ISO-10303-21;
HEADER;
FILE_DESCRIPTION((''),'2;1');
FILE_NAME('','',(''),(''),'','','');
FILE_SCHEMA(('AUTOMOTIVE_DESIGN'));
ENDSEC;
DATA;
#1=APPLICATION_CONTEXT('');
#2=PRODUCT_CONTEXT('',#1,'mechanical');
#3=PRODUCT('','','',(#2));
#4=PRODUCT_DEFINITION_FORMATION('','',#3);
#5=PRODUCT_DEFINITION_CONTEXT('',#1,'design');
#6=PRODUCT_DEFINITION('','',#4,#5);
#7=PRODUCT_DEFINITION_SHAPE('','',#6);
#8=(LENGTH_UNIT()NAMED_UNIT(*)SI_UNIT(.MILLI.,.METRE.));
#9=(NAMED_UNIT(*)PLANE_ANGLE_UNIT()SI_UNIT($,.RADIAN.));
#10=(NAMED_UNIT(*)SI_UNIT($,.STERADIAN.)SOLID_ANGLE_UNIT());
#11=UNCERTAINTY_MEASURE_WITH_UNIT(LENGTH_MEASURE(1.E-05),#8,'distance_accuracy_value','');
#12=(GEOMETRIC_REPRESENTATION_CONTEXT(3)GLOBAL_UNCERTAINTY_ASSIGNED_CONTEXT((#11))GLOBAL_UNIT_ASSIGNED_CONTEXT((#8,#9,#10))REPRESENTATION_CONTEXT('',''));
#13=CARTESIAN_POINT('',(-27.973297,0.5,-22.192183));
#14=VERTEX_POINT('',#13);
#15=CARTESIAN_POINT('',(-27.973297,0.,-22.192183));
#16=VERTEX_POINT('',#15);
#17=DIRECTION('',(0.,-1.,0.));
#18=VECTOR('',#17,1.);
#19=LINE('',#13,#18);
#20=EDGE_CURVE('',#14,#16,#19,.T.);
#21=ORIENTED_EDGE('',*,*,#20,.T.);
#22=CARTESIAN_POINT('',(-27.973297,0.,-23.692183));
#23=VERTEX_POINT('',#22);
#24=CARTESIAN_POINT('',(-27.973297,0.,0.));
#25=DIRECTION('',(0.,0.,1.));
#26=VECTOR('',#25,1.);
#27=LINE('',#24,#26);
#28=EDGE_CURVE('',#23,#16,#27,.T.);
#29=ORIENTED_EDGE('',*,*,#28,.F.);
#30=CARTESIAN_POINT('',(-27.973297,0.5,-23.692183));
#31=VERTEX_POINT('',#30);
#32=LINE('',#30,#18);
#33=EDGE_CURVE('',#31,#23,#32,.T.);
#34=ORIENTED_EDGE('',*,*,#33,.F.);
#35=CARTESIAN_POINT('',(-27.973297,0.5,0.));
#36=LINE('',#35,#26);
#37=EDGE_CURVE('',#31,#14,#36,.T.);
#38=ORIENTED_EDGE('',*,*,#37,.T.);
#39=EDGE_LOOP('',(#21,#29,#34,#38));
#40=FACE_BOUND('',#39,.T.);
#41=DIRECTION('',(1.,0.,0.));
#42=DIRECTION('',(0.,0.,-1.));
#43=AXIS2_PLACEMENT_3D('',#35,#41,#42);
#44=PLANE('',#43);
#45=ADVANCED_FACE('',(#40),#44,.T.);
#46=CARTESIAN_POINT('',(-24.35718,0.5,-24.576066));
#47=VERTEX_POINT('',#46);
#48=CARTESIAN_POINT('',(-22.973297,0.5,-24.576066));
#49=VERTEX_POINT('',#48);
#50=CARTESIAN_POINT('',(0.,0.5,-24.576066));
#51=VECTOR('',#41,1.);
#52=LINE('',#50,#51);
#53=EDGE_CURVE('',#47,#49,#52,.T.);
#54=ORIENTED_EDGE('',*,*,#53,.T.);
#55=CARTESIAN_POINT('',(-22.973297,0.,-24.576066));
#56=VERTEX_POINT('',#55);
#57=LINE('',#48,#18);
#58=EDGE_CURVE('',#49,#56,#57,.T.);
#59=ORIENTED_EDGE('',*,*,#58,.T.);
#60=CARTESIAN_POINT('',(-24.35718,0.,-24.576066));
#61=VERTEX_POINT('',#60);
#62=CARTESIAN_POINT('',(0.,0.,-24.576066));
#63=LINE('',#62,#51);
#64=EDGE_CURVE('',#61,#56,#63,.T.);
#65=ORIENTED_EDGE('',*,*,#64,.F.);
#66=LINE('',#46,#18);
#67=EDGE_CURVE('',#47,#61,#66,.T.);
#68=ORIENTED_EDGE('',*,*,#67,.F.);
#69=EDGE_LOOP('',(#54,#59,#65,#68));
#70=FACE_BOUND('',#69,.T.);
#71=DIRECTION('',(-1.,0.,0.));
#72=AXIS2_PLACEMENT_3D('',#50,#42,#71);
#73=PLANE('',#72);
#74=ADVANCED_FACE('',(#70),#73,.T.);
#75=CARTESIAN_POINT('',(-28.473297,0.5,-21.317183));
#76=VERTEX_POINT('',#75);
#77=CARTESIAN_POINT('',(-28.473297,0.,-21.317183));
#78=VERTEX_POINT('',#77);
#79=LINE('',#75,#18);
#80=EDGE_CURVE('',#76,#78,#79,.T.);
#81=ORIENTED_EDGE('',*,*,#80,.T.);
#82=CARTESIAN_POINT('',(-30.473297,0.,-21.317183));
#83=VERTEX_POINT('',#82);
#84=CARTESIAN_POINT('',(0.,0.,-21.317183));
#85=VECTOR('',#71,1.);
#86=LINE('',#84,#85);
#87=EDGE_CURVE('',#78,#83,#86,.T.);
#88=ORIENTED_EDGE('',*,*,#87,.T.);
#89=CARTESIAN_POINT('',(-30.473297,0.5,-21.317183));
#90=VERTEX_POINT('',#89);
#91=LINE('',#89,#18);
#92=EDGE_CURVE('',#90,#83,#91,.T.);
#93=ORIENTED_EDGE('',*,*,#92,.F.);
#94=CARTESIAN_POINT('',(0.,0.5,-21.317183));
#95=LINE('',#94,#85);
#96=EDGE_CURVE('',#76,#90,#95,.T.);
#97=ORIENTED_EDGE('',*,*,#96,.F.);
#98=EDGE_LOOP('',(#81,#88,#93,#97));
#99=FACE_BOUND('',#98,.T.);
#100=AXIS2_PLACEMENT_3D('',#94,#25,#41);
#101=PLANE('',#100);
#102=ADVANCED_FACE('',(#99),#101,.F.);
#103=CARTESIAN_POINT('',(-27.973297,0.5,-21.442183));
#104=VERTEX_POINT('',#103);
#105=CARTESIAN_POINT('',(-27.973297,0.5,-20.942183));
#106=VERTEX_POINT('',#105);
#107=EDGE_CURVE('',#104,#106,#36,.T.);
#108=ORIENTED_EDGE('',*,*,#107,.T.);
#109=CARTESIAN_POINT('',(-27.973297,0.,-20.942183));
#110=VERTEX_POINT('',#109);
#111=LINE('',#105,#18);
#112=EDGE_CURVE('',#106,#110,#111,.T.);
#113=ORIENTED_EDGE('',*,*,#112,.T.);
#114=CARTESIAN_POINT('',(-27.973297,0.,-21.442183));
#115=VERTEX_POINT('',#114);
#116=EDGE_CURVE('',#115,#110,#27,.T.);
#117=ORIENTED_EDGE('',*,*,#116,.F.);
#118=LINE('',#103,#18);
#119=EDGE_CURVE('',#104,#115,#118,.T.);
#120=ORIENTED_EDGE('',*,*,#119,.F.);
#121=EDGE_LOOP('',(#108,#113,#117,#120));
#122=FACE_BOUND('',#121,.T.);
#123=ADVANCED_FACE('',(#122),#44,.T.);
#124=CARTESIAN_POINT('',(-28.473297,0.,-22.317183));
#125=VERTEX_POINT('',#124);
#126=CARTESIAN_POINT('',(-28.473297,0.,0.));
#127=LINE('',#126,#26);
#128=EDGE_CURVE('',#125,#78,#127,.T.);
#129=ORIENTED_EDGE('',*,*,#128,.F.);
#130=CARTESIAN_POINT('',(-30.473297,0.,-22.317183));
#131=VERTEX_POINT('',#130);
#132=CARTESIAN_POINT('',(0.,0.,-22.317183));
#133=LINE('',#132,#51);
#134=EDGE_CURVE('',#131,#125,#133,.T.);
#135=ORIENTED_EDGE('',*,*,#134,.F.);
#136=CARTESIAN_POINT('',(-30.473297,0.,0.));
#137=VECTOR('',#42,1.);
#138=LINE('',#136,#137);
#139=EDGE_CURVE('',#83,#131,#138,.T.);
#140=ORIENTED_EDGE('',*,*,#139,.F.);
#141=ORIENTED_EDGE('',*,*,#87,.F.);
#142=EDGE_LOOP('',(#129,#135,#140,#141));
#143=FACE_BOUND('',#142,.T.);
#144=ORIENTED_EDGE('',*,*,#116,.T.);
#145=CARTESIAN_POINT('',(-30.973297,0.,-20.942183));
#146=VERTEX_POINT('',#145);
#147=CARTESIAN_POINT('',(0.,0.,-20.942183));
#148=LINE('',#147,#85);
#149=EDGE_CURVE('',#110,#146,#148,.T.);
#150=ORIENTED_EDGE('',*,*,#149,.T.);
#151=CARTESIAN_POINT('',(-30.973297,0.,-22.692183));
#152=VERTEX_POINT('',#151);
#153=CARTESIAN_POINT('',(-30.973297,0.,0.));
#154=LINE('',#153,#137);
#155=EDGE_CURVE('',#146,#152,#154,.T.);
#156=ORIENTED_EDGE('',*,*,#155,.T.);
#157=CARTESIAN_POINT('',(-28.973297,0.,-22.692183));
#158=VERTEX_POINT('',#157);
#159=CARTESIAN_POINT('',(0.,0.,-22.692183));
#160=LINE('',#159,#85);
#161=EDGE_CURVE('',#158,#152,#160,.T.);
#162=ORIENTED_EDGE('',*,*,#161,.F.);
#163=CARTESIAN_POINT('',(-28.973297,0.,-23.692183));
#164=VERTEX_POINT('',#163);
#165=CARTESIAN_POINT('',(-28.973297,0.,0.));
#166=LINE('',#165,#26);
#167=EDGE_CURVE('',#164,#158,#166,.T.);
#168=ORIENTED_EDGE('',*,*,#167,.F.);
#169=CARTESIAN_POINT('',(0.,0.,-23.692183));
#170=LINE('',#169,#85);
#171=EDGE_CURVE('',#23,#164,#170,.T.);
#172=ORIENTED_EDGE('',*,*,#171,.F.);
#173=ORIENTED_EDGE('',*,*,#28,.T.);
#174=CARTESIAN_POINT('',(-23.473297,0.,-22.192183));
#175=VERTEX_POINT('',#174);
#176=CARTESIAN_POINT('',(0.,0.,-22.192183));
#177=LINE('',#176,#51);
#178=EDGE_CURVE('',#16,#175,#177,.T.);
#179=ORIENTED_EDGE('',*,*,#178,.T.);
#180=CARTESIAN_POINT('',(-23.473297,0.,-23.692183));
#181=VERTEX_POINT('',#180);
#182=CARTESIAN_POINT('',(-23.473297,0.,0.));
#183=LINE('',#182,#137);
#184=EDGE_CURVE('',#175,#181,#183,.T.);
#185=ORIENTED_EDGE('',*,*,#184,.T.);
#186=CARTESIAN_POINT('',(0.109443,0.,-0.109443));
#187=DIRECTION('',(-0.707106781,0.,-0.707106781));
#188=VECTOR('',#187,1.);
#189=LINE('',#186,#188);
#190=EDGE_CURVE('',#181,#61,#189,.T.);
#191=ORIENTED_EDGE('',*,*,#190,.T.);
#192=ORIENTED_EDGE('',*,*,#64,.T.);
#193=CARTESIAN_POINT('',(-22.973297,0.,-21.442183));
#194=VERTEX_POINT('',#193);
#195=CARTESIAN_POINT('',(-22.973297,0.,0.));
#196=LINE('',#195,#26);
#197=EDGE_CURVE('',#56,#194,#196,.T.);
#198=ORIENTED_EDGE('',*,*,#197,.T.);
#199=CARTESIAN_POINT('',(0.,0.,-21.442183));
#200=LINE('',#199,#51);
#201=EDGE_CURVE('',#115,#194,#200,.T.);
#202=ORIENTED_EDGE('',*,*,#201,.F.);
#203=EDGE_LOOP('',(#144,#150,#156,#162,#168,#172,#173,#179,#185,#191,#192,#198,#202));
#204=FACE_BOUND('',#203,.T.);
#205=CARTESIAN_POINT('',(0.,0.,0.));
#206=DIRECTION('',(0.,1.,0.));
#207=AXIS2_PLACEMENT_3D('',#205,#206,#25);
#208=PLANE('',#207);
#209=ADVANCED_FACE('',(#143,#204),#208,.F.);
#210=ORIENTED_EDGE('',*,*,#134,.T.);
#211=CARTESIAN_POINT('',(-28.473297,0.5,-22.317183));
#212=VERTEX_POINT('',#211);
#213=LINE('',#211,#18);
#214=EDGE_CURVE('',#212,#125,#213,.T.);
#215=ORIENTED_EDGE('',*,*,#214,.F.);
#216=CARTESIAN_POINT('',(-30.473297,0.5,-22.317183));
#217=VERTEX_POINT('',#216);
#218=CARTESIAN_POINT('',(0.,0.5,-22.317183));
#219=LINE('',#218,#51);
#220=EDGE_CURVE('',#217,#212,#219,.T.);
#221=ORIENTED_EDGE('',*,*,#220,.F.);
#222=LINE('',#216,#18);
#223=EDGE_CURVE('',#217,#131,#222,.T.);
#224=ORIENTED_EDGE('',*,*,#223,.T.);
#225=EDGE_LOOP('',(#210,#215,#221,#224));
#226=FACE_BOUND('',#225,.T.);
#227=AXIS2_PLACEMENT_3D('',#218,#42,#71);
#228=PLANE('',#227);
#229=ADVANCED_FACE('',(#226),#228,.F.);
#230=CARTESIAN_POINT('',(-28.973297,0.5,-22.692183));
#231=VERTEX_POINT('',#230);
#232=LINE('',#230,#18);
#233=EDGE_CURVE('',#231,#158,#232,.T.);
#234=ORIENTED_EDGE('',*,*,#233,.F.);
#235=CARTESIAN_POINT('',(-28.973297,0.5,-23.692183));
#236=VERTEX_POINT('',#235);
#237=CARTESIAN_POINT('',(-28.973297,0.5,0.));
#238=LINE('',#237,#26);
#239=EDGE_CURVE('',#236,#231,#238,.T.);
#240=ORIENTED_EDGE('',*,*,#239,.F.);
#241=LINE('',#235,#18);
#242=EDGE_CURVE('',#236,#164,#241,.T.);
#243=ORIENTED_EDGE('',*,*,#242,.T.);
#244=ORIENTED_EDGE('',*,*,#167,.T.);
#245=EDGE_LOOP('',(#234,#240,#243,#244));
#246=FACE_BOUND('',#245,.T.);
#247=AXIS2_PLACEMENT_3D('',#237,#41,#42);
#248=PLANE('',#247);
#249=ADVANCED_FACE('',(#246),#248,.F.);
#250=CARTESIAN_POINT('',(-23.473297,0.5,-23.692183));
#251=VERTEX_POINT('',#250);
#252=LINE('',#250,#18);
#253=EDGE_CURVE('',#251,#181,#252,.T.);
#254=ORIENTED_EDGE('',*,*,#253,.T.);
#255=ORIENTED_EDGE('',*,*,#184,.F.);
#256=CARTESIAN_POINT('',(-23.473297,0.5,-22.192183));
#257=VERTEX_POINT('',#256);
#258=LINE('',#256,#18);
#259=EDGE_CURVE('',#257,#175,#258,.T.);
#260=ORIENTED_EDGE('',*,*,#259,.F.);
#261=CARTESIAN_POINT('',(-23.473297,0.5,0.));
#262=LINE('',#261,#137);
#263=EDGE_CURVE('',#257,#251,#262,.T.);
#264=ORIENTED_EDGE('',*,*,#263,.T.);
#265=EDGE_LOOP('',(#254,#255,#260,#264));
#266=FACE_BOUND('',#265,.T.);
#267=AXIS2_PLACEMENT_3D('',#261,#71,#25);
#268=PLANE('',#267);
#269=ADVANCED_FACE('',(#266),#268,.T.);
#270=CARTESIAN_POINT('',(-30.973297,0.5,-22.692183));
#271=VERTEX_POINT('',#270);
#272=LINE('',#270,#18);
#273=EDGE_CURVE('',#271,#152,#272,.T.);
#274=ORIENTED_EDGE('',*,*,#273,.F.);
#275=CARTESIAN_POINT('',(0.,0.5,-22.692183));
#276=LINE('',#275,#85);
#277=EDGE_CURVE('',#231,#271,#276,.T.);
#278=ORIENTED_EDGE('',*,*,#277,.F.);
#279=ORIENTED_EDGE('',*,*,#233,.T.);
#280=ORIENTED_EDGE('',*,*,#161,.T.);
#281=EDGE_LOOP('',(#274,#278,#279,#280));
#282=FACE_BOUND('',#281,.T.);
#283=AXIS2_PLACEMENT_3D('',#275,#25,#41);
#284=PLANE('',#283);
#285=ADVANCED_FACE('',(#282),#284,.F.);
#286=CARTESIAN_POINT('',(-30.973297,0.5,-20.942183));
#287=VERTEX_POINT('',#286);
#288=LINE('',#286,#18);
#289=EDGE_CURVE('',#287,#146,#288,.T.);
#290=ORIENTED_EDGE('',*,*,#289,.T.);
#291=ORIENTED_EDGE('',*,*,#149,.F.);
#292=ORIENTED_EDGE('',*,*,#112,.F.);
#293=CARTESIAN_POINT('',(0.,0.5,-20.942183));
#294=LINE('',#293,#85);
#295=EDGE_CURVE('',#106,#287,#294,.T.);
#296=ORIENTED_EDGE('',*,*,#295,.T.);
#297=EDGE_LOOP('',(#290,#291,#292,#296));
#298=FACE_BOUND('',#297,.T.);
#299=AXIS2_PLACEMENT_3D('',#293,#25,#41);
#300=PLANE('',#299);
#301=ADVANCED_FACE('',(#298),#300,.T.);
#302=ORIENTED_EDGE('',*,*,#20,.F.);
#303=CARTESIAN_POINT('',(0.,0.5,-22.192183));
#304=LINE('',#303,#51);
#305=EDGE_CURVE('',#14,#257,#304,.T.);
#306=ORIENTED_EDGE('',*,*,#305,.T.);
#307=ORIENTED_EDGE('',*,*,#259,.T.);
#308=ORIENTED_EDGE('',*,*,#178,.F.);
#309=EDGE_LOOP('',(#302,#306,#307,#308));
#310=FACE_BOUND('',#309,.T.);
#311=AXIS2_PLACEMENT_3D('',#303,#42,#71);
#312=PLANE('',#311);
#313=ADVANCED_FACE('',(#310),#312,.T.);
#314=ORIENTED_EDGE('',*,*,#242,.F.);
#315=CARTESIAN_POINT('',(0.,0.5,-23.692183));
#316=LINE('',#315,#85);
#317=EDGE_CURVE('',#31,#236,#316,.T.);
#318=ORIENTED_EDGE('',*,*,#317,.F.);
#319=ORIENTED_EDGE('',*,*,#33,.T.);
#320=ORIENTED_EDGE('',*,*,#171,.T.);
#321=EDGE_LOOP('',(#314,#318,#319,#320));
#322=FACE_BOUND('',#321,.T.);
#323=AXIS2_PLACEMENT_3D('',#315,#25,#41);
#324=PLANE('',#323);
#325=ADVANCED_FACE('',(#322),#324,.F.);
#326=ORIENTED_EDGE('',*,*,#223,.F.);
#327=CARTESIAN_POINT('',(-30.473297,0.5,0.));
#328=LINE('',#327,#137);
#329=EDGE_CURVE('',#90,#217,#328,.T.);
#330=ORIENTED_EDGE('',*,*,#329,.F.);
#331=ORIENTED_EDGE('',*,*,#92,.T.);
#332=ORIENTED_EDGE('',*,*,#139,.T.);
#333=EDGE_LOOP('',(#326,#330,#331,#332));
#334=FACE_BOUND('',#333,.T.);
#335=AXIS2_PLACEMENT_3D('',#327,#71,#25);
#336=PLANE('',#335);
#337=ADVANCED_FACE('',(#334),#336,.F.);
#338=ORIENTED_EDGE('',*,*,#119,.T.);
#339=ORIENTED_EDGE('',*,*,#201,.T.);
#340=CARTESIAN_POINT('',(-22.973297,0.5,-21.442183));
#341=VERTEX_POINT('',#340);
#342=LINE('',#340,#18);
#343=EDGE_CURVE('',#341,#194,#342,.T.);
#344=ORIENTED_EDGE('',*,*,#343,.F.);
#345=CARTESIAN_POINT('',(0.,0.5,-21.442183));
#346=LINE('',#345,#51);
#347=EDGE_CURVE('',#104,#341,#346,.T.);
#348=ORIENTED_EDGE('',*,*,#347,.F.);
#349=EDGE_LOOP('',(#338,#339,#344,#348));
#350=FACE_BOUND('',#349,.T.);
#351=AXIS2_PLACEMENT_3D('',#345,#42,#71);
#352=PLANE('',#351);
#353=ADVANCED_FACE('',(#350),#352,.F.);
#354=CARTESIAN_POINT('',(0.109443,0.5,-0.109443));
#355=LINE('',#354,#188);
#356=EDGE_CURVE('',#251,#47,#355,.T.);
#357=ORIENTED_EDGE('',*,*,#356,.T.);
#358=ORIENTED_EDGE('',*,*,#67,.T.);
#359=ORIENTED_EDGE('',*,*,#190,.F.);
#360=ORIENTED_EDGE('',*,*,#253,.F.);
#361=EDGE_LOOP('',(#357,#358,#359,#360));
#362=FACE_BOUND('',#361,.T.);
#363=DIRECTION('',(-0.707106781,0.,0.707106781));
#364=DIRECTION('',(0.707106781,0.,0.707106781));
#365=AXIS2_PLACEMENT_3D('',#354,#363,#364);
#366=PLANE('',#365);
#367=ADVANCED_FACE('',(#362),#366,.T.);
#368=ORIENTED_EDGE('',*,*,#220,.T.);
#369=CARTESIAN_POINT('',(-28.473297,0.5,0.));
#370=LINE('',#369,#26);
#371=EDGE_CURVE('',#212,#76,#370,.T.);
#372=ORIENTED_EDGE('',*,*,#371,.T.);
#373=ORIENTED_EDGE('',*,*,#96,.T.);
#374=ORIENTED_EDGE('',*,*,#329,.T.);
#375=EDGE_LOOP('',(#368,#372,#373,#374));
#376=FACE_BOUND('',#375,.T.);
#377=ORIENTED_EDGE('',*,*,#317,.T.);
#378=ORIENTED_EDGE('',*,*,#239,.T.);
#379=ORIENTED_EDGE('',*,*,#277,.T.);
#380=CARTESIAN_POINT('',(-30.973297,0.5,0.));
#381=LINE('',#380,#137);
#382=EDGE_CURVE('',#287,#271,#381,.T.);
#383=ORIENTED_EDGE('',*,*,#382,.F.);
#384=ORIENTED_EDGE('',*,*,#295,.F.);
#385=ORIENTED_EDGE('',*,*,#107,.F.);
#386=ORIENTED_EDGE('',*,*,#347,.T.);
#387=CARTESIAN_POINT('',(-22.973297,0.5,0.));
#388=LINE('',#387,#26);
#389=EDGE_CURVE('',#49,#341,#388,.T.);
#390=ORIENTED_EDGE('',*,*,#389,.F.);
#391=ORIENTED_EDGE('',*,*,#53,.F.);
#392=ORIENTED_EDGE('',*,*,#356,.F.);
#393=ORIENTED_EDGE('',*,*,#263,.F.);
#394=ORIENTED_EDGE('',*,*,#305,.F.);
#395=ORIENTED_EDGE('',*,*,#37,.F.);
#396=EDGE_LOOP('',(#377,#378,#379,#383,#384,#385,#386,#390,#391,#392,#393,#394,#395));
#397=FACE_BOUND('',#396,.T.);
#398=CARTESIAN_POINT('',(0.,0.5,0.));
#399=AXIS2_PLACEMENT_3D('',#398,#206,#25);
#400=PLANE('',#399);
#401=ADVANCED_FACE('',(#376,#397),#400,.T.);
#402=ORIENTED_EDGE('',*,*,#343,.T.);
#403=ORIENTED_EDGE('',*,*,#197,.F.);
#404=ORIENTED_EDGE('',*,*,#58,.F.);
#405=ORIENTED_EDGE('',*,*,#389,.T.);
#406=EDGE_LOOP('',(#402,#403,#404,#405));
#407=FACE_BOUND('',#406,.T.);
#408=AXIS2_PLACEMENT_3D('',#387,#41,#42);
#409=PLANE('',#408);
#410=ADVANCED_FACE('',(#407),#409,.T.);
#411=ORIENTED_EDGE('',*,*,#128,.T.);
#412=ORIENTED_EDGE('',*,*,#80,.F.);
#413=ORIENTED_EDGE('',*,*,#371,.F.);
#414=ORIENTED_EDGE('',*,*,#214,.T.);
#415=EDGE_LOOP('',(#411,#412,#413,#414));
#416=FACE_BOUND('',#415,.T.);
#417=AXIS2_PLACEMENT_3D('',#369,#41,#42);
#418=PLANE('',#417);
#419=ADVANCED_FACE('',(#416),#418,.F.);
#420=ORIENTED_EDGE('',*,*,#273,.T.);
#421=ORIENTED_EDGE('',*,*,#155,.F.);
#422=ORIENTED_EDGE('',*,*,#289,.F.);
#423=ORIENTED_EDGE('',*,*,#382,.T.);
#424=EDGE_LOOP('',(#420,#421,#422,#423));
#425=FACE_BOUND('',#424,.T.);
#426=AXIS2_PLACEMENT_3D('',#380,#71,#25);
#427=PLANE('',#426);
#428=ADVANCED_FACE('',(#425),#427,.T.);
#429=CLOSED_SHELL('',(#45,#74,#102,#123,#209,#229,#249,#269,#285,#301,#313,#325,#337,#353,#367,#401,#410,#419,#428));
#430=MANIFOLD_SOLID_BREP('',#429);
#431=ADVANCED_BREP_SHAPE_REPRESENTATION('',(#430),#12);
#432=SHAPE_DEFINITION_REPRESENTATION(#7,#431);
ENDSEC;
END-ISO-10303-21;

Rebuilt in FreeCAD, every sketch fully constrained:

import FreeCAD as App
import Part
import Sketcher
Q = App.Units.Quantity

doc = App.newDocument("Part")
body = doc.addObject("PartDesign::Body", "Body")

sketch1 = body.newObject("Sketcher::SketchObject", "Sketch")
sketch1.AttachmentSupport = (doc.getObject("XZ_Plane"), [""])
sketch1.MapMode = "FlatFace"
sketch1.addGeometry([
    Part.LineSegment(App.Vector(-23.473297, -22.192183, 0), App.Vector(-27.973297, -22.192183, 0)),
    Part.LineSegment(App.Vector(-27.973297, -22.192183, 0), App.Vector(-27.973297, -23.692183, 0)),
    Part.LineSegment(App.Vector(-27.973297, -23.692183, 0), App.Vector(-28.973297, -23.692183, 0)),
    Part.LineSegment(App.Vector(-28.973297, -23.692183, 0), App.Vector(-28.973297, -22.692183, 0)),
    Part.LineSegment(App.Vector(-28.973297, -22.692183, 0), App.Vector(-30.973297, -22.692183, 0)),
    Part.LineSegment(App.Vector(-30.973297, -22.692183, 0), App.Vector(-30.973297, -20.942183, 0)),
    Part.LineSegment(App.Vector(-30.973297, -20.942183, 0), App.Vector(-27.973297, -20.942183, 0)),
    Part.LineSegment(App.Vector(-27.973297, -20.942183, 0), App.Vector(-27.973297, -21.442183, 0)),
    Part.LineSegment(App.Vector(-27.973297, -21.442183, 0), App.Vector(-22.973297, -21.442183, 0)),
    Part.LineSegment(App.Vector(-22.973297, -21.442183, 0), App.Vector(-22.973297, -24.576066, 0)),
    Part.LineSegment(App.Vector(-22.973297, -24.576066, 0), App.Vector(-24.35718, -24.576066, 0)),
    Part.LineSegment(App.Vector(-24.35718, -24.576066, 0), App.Vector(-23.473297, -23.692183, 0)),
    Part.LineSegment(App.Vector(-23.473297, -23.692183, 0), App.Vector(-23.473297, -22.192183, 0)),
    Part.LineSegment(App.Vector(-28.473297, -21.317183, 0), App.Vector(-30.473297, -21.317183, 0)),
    Part.LineSegment(App.Vector(-30.473297, -21.317183, 0), App.Vector(-30.473297, -22.317183, 0)),
    Part.LineSegment(App.Vector(-30.473297, -22.317183, 0), App.Vector(-28.473297, -22.317183, 0)),
    Part.LineSegment(App.Vector(-28.473297, -22.317183, 0), App.Vector(-28.473297, -21.317183, 0)),
], False)
sketch1.addConstraint([
    Sketcher.Constraint("Coincident", 0, 2, 1, 1),
    Sketcher.Constraint("Coincident", 1, 2, 2, 1),
    Sketcher.Constraint("Coincident", 2, 2, 3, 1),
    Sketcher.Constraint("Coincident", 3, 2, 4, 1),
    Sketcher.Constraint("Coincident", 4, 2, 5, 1),
    Sketcher.Constraint("Coincident", 5, 2, 6, 1),
    Sketcher.Constraint("Coincident", 6, 2, 7, 1),
    Sketcher.Constraint("Coincident", 7, 2, 8, 1),
    Sketcher.Constraint("Coincident", 8, 2, 9, 1),
    Sketcher.Constraint("Coincident", 9, 2, 10, 1),
    Sketcher.Constraint("Coincident", 10, 2, 11, 1),
    Sketcher.Constraint("Coincident", 11, 2, 12, 1),
    Sketcher.Constraint("Coincident", 12, 2, 0, 1),
    Sketcher.Constraint("Coincident", 13, 2, 14, 1),
    Sketcher.Constraint("Coincident", 14, 2, 15, 1),
    Sketcher.Constraint("Coincident", 15, 2, 16, 1),
    Sketcher.Constraint("Coincident", 16, 2, 13, 1),
    Sketcher.Constraint("Horizontal", 0),
    Sketcher.Constraint("Vertical", 1),
    Sketcher.Constraint("Horizontal", 2),
    Sketcher.Constraint("Vertical", 3),
    Sketcher.Constraint("Horizontal", 4),
    Sketcher.Constraint("Vertical", 5),
    Sketcher.Constraint("Horizontal", 6),
    Sketcher.Constraint("Vertical", 7),
    Sketcher.Constraint("Horizontal", 8),
    Sketcher.Constraint("Vertical", 9),
    Sketcher.Constraint("Horizontal", 10),
    Sketcher.Constraint("Vertical", 12),
    Sketcher.Constraint("Horizontal", 13),
    Sketcher.Constraint("Vertical", 14),
    Sketcher.Constraint("Horizontal", 15),
    Sketcher.Constraint("Vertical", 16),
    Sketcher.Constraint("Horizontal", 2, 2, 11, 2),
    Sketcher.Constraint("Vertical", 1, 2, 6, 2),
    Sketcher.Constraint("Equal", 4, 13),
    Sketcher.Constraint("Equal", 2, 3),
    Sketcher.Constraint("Equal", 3, 14),
    Sketcher.Constraint("DistanceX", 2, 2, 2, 1, 1.0),
    Sketcher.Constraint("DistanceX", 4, 2, 4, 1, 2.0),
    Sketcher.Constraint("DistanceX", 8, 1, 8, 2, 5.0),
    Sketcher.Constraint("Angle", 11, Q("45 deg")),
    Sketcher.Constraint("DistanceX", 0, 2, 0, 1, 4.5),
    Sketcher.Constraint("DistanceY", 1, 2, 1, 1, 1.5),
    Sketcher.Constraint("DistanceY", 7, 2, 7, 1, 0.5),
    Sketcher.Constraint("DistanceY", 5, 1, 5, 2, 1.75),
    Sketcher.Constraint("DistanceX", 5, 2, 13, 2, 0.5),
    Sketcher.Constraint("Distance", 11, 1.25),
    Sketcher.Constraint("DistanceY", 13, 2, 5, 2, 0.375),
    Sketcher.Constraint("DistanceX", 10, 2, -1, 1, 24.35718),
    Sketcher.Constraint("DistanceY", 0, 2, -1, 1, 22.192183),
])
pad1 = body.newObject("PartDesign::Pad", "Pad")
pad1.Profile = sketch1
pad1.Length = 0.5
pad1.Reversed = True

doc.recompute()
